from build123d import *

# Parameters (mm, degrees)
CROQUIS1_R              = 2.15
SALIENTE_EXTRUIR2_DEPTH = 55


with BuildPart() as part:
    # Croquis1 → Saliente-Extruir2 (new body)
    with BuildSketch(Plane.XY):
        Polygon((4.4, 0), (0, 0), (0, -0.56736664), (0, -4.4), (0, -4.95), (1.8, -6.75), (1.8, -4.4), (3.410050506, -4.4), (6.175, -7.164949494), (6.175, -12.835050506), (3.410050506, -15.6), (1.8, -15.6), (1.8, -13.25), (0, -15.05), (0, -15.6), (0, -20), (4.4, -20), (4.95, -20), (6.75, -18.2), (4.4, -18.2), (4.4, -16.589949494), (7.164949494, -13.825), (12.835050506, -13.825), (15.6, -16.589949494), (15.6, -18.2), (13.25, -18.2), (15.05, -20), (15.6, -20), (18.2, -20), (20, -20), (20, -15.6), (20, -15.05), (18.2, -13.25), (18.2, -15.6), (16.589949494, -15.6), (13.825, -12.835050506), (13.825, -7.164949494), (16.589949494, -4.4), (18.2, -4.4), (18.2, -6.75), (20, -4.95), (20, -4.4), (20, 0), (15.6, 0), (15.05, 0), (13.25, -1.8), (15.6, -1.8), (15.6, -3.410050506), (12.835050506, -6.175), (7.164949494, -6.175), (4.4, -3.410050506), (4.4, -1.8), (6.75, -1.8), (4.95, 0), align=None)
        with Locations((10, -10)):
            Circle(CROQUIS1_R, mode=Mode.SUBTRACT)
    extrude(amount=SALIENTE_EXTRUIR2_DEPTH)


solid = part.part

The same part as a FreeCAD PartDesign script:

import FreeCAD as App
import Part
import Sketcher
from FreeCAD import Vector

doc = App.newDocument("Part")
body = doc.addObject("PartDesign::Body", "Body")

# Sketch on XY plane
sketch1 = body.newObject("Sketcher::SketchObject", "Sketch")
sketch1.AttachmentSupport = (doc.getObject("XY_Plane"), [""])
sketch1.MapMode = "FlatFace"
sketch1.addGeometry([
    Part.LineSegment(Vector(0, 0, 0), Vector(0, -5, 0)),  # 0
    Part.LineSegment(Vector(0, -5, 0), Vector(1.8, -6.8, 0)),  # 1
    Part.LineSegment(Vector(1.8, -6.8, 0), Vector(1.8, -4.4, 0)),  # 2
    Part.LineSegment(Vector(1.8, -4.4, 0), Vector(3.4, -4.4, 0)),  # 3
    Part.LineSegment(Vector(3.4, -4.4, 0), Vector(6.2, -7.2, 0)),  # 4
    Part.LineSegment(Vector(6.2, -7.2, 0), Vector(6.2, -12.8, 0)),  # 5
    Part.LineSegment(Vector(6.2, -12.8, 0), Vector(3.4, -15.6, 0)),  # 6
    Part.LineSegment(Vector(3.4, -15.6, 0), Vector(1.8, -15.6, 0)),  # 7
    Part.LineSegment(Vector(1.8, -15.6, 0), Vector(1.8, -13.2, 0)),  # 8
    Part.LineSegment(Vector(1.8, -13.2, 0), Vector(0, -15.1, 0)),  # 9
    Part.LineSegment(Vector(0, -15.1, 0), Vector(0, -20, 0)),  # 10
    Part.LineSegment(Vector(0, -20, 0), Vector(5, -20, 0)),  # 11
    Part.LineSegment(Vector(5, -20, 0), Vector(6.8, -18.2, 0)),  # 12
    Part.LineSegment(Vector(6.8, -18.2, 0), Vector(4.4, -18.2, 0)),  # 13
    Part.LineSegment(Vector(4.4, -18.2, 0), Vector(4.4, -16.6, 0)),  # 14
    Part.LineSegment(Vector(4.4, -16.6, 0), Vector(7.2, -13.8, 0)),  # 15
    Part.LineSegment(Vector(7.2, -13.8, 0), Vector(12.8, -13.8, 0)),  # 16
    Part.LineSegment(Vector(12.8, -13.8, 0), Vector(15.6, -16.6, 0)),  # 17
    Part.LineSegment(Vector(15.6, -16.6, 0), Vector(15.6, -18.2, 0)),  # 18
    Part.LineSegment(Vector(15.6, -18.2, 0), Vector(13.2, -18.2, 0)),  # 19
    Part.LineSegment(Vector(13.2, -18.2, 0), Vector(15.1, -20, 0)),  # 20
    Part.LineSegment(Vector(15.1, -20, 0), Vector(20, -20, 0)),  # 21
    Part.LineSegment(Vector(20, -20, 0), Vector(20, -15.1, 0)),  # 22
    Part.LineSegment(Vector(20, -15.1, 0), Vector(18.2, -13.2, 0)),  # 23
    Part.LineSegment(Vector(18.2, -13.2, 0), Vector(18.2, -15.6, 0)),  # 24
    Part.LineSegment(Vector(18.2, -15.6, 0), Vector(16.6, -15.6, 0)),  # 25
    Part.LineSegment(Vector(16.6, -15.6, 0), Vector(13.8, -12.8, 0)),  # 26
    Part.LineSegment(Vector(13.8, -12.8, 0), Vector(13.8, -7.2, 0)),  # 27
    Part.LineSegment(Vector(13.8, -7.2, 0), Vector(16.6, -4.4, 0)),  # 28
    Part.LineSegment(Vector(16.6, -4.4, 0), Vector(18.2, -4.4, 0)),  # 29
    Part.LineSegment(Vector(18.2, -4.4, 0), Vector(18.2, -6.8, 0)),  # 30
    Part.LineSegment(Vector(18.2, -6.8, 0), Vector(20, -5, 0)),  # 31
    Part.LineSegment(Vector(20, -5, 0), Vector(20, 0, 0)),  # 32
    Part.LineSegment(Vector(20, 0, 0), Vector(15.1, 0, 0)),  # 33
    Part.LineSegment(Vector(15.1, 0, 0), Vector(13.2, -1.8, 0)),  # 34
    Part.LineSegment(Vector(13.2, -1.8, 0), Vector(15.6, -1.8, 0)),  # 35
    Part.LineSegment(Vector(15.6, -1.8, 0), Vector(15.6, -3.4, 0)),  # 36
    Part.LineSegment(Vector(15.6, -3.4, 0), Vector(12.8, -6.2, 0)),  # 37
    Part.LineSegment(Vector(12.8, -6.2, 0), Vector(7.2, -6.2, 0)),  # 38
    Part.LineSegment(Vector(7.2, -6.2, 0), Vector(4.4, -3.4, 0)),  # 39
    Part.LineSegment(Vector(4.4, -3.4, 0), Vector(4.4, -1.8, 0)),  # 40
    Part.LineSegment(Vector(4.4, -1.8, 0), Vector(6.8, -1.8, 0)),  # 41
    Part.LineSegment(Vector(6.8, -1.8, 0), Vector(5, 0, 0)),  # 42
    Part.LineSegment(Vector(5, 0, 0), Vector(0, 0, 0)),  # 43
    Part.Circle(Vector(10, -10, 0), Vector(0, 0, 1), 2.1),  # 44
], False)
sketch1.addConstraint([
    Sketcher.Constraint("Coincident", 0, 2, 1, 1),
    Sketcher.Constraint("Coincident", 1, 2, 2, 1),
    Sketcher.Constraint("Coincident", 2, 2, 3, 1),
    Sketcher.Constraint("Coincident", 3, 2, 4, 1),
    Sketcher.Constraint("Coincident", 4, 2, 5, 1),
    Sketcher.Constraint("Coincident", 5, 2, 6, 1),
    Sketcher.Constraint("Coincident", 6, 2, 7, 1),
    Sketcher.Constraint("Coincident", 7, 2, 8, 1),
    Sketcher.Constraint("Coincident", 8, 2, 9, 1),
    Sketcher.Constraint("Coincident", 9, 2, 10, 1),
    Sketcher.Constraint("Coincident", 10, 2, 11, 1),
    Sketcher.Constraint("Coincident", 11, 2, 12, 1),
    Sketcher.Constraint("Coincident", 12, 2, 13, 1),
    Sketcher.Constraint("Coincident", 13, 2, 14, 1),
    Sketcher.Constraint("Coincident", 14, 2, 15, 1),
    Sketcher.Constraint("Coincident", 15, 2, 16, 1),
    Sketcher.Constraint("Coincident", 16, 2, 17, 1),
    Sketcher.Constraint("Coincident", 17, 2, 18, 1),
    Sketcher.Constraint("Coincident", 18, 2, 19, 1),
    Sketcher.Constraint("Coincident", 19, 2, 20, 1),
    Sketcher.Constraint("Coincident", 20, 2, 21, 1),
    Sketcher.Constraint("Coincident", 21, 2, 22, 1),
    Sketcher.Constraint("Coincident", 22, 2, 23, 1),
    Sketcher.Constraint("Coincident", 23, 2, 24, 1),
    Sketcher.Constraint("Coincident", 24, 2, 25, 1),
    Sketcher.Constraint("Coincident", 25, 2, 26, 1),
    Sketcher.Constraint("Coincident", 26, 2, 27, 1),
    Sketcher.Constraint("Coincident", 27, 2, 28, 1),
    Sketcher.Constraint("Coincident", 28, 2, 29, 1),
    Sketcher.Constraint("Coincident", 29, 2, 30, 1),
    Sketcher.Constraint("Coincident", 30, 2, 31, 1),
    Sketcher.Constraint("Coincident", 31, 2, 32, 1),
    Sketcher.Constraint("Coincident", 32, 2, 33, 1),
    Sketcher.Constraint("Coincident", 33, 2, 34, 1),
    Sketcher.Constraint("Coincident", 34, 2, 35, 1),
    Sketcher.Constraint("Coincident", 35, 2, 36, 1),
    Sketcher.Constraint("Coincident", 36, 2, 37, 1),
    Sketcher.Constraint("Coincident", 37, 2, 38, 1),
    Sketcher.Constraint("Coincident", 38, 2, 39, 1),
    Sketcher.Constraint("Coincident", 39, 2, 40, 1),
    Sketcher.Constraint("Coincident", 40, 2, 41, 1),
    Sketcher.Constraint("Coincident", 41, 2, 42, 1),
    Sketcher.Constraint("Coincident", 42, 2, 43, 1),
    Sketcher.Constraint("Coincident", 43, 2, 0, 1),
    Sketcher.Constraint("Vertical", 0),
    Sketcher.Constraint("Vertical", 2),
    Sketcher.Constraint("Horizontal", 3),
    Sketcher.Constraint("Vertical", 5),
    Sketcher.Constraint("Horizontal", 7),
    Sketcher.Constraint("Vertical", 8),
    Sketcher.Constraint("Vertical", 10),
    Sketcher.Constraint("Horizontal", 11),
    Sketcher.Constraint("Horizontal", 13),
    Sketcher.Constraint("Vertical", 14),
    Sketcher.Constraint("Horizontal", 16),
    Sketcher.Constraint("Vertical", 18),
    Sketcher.Constraint("Horizontal", 19),
    Sketcher.Constraint("Horizontal", 21),
    Sketcher.Constraint("Vertical", 22),
    Sketcher.Constraint("Vertical", 24),
    Sketcher.Constraint("Horizontal", 25),
    Sketcher.Constraint("Vertical", 27),
    Sketcher.Constraint("Horizontal", 29),
    Sketcher.Constraint("Vertical", 30),
    Sketcher.Constraint("Vertical", 32),
    Sketcher.Constraint("Horizontal", 33),
    Sketcher.Constraint("Horizontal", 35),
    Sketcher.Constraint("Vertical", 36),
    Sketcher.Constraint("Horizontal", 38),
    Sketcher.Constraint("Vertical", 40),
    Sketcher.Constraint("Horizontal", 41),
    Sketcher.Constraint("Horizontal", 43),
    Sketcher.Constraint("Coincident", 43, 2, -1, 1),
    Sketcher.Constraint("PointOnObject", 9, 2, -2),
    Sketcher.Constraint("PointOnObject", 32, 2, -1),
    Sketcher.Constraint("Parallel", 1, 4),
    Sketcher.Constraint("Perpendicular", 4, 6),
    Sketcher.Constraint("Parallel", 6, 9),
    Sketcher.Constraint("Parallel", 9, 12),
    Sketcher.Constraint("Parallel", 12, 15),
    Sketcher.Constraint("Perpendicular", 15, 17),
    Sketcher.Constraint("Parallel", 17, 20),
    Sketcher.Constraint("Parallel", 20, 23),
    Sketcher.Constraint("Parallel", 23, 26),
    Sketcher.Constraint("Perpendicular", 26, 28),
    Sketcher.Constraint("Parallel", 28, 31),
    Sketcher.Constraint("Parallel", 31, 34),
    Sketcher.Constraint("Parallel", 34, 37),
    Sketcher.Constraint("Perpendicular", 37, 39),
    Sketcher.Constraint("Parallel", 39, 42),
    Sketcher.Constraint("Horizontal", 14, 2, 17, 2),
    Sketcher.Constraint("Horizontal", 13, 2, 18, 2),
    Sketcher.Constraint("Horizontal", 11, 2, 20, 2),
    Sketcher.Constraint("Horizontal", 9, 2, 22, 2),
    Sketcher.Constraint("Horizontal", 8, 2, 23, 2),
    Sketcher.Constraint("Horizontal", 7, 2, 24, 2),
    Sketcher.Constraint("Horizontal", 5, 2, 26, 2),
    Sketcher.Constraint("Horizontal", 4, 2, 27, 2),
    Sketcher.Constraint("Horizontal", 3, 2, 28, 2),
    Sketcher.Constraint("Horizontal", 1, 2, 30, 2),
    Sketcher.Constraint("Horizontal", 0, 2, 31, 2),
    Sketcher.Constraint("Horizontal", 36, 2, 39, 2),
    Sketcher.Constraint("Horizontal", 35, 2, 40, 2),
    Sketcher.Constraint("Vertical", 3, 2, 6, 2),
    Sketcher.Constraint("Vertical", 2, 2, 7, 2),
    Sketcher.Constraint("Vertical", 25, 2, 28, 2),
    Sketcher.Constraint("Vertical", 24, 2, 29, 2),
    Sketcher.Constraint("Vertical", 20, 2, 33, 2),
    Sketcher.Constraint("Vertical", 19, 2, 34, 2),
    Sketcher.Constraint("Vertical", 18, 2, 35, 2),
    Sketcher.Constraint("Vertical", 16, 2, 37, 2),
    Sketcher.Constraint("Vertical", 15, 2, 38, 2),
    Sketcher.Constraint("Vertical", 12, 2, 41, 2),
    Sketcher.Constraint("Equal", 13, 19),
    Sketcher.Constraint("Equal", 11, 21),
    Sketcher.Constraint("Equal", 7, 25),
    Sketcher.Constraint("Equal", 43, 0),
    Sketcher.Constraint("Equal", 41, 2),
    Sketcher.Constraint("Equal", 38, 5),
    Sketcher.Constraint("Equal", 2, 8),
    Sketcher.Constraint("Equal", 0, 10),
    Sketcher.Constraint("Equal", 29, 14),
    Sketcher.Constraint("Equal", 18, 36),
    Sketcher.Constraint("Equal", 9, 12),
    Sketcher.Constraint("Equal", 6, 15),
    Sketcher.Constraint("Diameter", 44, 4.3),
    Sketcher.Constraint("DistanceX", -1, 1, 44, 3, 10.0),
    Sketcher.Constraint("DistanceY", 44, 3, -1, 1, 10.0),
    Sketcher.Constraint("DistanceY", 10, 2, -1, 1, 20.0),
    Sketcher.Constraint("DistanceX", 11, 1, 11, 2, 4.95),
    Sketcher.Constraint("DistanceX", 13, 2, 13, 1, 2.35),
    Sketcher.Constraint("DistanceX", -1, 1, 1, 2, 1.8),
    Sketcher.Constraint("DistanceX", 4, 2, 27, 2, 7.65),
    Sketcher.Constraint("DistanceX", 16, 1, 16, 2, 5.670101),
])
pad1 = body.newObject("PartDesign::Pad", "Pad")
pad1.Profile = sketch1
pad1.Length = 55

doc.recompute()
